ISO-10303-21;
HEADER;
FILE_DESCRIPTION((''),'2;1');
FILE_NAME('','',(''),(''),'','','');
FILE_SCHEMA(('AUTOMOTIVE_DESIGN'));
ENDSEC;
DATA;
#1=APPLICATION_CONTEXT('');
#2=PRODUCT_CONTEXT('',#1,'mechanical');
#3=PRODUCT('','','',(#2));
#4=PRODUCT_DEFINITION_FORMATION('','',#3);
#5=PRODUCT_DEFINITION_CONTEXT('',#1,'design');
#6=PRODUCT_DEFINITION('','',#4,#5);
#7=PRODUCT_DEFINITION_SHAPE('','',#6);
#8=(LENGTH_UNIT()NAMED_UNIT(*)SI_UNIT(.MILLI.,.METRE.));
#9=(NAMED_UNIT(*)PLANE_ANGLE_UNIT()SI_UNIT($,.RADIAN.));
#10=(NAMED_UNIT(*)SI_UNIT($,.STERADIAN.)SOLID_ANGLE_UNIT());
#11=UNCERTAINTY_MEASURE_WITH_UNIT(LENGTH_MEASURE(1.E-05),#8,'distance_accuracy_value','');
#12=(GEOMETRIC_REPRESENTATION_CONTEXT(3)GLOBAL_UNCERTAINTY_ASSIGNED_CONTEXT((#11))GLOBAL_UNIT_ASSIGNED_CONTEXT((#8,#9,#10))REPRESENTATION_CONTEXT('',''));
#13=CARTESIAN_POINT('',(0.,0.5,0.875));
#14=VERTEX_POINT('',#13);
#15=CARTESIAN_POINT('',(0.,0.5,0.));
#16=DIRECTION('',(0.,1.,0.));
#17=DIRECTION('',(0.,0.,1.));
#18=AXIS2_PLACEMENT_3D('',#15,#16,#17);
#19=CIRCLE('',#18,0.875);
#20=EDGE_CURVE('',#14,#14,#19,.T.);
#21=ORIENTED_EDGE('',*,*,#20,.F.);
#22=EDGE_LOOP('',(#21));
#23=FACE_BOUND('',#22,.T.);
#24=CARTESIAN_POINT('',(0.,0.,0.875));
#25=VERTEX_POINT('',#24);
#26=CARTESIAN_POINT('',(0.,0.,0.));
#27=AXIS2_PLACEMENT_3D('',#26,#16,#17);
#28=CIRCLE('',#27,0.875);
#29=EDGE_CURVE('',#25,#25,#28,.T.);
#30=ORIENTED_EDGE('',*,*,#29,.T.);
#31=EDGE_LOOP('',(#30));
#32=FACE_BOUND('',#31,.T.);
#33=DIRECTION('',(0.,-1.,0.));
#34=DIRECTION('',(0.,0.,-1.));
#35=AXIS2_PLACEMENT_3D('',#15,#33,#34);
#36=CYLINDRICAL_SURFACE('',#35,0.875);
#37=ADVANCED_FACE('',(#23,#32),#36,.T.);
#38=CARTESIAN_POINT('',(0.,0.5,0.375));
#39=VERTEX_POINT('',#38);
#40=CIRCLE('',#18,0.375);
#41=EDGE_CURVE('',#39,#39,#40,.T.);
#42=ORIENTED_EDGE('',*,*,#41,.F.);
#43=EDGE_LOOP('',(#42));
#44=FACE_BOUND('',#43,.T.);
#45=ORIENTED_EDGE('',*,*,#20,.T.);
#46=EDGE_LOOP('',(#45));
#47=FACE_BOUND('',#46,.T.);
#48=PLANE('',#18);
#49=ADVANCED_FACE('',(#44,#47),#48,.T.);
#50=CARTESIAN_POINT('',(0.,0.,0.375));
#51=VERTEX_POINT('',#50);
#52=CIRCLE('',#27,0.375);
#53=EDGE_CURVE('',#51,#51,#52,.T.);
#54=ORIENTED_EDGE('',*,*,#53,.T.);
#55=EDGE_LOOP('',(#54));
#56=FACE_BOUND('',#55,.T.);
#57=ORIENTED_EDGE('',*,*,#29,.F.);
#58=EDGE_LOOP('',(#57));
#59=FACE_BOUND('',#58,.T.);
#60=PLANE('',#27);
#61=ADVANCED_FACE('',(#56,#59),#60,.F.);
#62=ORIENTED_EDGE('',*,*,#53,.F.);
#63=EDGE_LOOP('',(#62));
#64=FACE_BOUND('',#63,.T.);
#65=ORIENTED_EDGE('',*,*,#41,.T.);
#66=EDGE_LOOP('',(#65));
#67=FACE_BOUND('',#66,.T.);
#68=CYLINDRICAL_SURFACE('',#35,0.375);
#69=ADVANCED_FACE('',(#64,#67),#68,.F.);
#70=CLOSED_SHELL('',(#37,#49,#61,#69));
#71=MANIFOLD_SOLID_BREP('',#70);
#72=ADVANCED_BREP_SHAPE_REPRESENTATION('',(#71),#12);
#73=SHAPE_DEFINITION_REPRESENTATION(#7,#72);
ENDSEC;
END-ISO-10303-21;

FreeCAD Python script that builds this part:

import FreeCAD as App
import Part
import Sketcher

V = App.Vector
Q = App.Units.Quantity

doc = App.newDocument("Part")
params = doc.addObject("Spreadsheet::Sheet", "Params")
for row, (alias, value) in enumerate([
    ("sketch1_diameter", "1.75 mm"),
    ("sketch1_diameter2", "0.75 mm"),
    ("pad1_length", "0.5 mm"),
], start=1):
    params.set(f"A{row}", alias)
    params.set(f"B{row}", "=" + value)
    params.setAlias(f"B{row}", alias)

body = doc.addObject("PartDesign::Body", "Body")

# Sketch on XZ plane
sketch1 = body.newObject("Sketcher::SketchObject", "Sketch")
sketch1.AttachmentSupport = (doc.getObject("XZ_Plane"), [""])
sketch1.MapMode = "FlatFace"
sketch1.addGeometry([
    Part.Circle(V(0, 0, 0), V(0, 0, 1), 0.88),
    Part.Circle(V(0, 0, 0), V(0, 0, 1), 0.38),
], False)
sketch1.addConstraint([
    Sketcher.Constraint("Coincident", 0, 3, -1, 1),
    Sketcher.Constraint("Coincident", 1, 3, -1, 1),
    Sketcher.Constraint("Diameter", 0, Q("1.75 mm")),
    Sketcher.Constraint("Diameter", 1, Q("0.75 mm")),
])
sketch1.setExpression("Constraints[2]", "Params.sketch1_diameter")
sketch1.setExpression("Constraints[3]", "Params.sketch1_diameter2")
pad1 = body.newObject("PartDesign::Pad", "Pad")
pad1.Profile = sketch1
pad1.setExpression("Length", "Params.pad1_length")
pad1.Reversed = True

doc.recompute()
